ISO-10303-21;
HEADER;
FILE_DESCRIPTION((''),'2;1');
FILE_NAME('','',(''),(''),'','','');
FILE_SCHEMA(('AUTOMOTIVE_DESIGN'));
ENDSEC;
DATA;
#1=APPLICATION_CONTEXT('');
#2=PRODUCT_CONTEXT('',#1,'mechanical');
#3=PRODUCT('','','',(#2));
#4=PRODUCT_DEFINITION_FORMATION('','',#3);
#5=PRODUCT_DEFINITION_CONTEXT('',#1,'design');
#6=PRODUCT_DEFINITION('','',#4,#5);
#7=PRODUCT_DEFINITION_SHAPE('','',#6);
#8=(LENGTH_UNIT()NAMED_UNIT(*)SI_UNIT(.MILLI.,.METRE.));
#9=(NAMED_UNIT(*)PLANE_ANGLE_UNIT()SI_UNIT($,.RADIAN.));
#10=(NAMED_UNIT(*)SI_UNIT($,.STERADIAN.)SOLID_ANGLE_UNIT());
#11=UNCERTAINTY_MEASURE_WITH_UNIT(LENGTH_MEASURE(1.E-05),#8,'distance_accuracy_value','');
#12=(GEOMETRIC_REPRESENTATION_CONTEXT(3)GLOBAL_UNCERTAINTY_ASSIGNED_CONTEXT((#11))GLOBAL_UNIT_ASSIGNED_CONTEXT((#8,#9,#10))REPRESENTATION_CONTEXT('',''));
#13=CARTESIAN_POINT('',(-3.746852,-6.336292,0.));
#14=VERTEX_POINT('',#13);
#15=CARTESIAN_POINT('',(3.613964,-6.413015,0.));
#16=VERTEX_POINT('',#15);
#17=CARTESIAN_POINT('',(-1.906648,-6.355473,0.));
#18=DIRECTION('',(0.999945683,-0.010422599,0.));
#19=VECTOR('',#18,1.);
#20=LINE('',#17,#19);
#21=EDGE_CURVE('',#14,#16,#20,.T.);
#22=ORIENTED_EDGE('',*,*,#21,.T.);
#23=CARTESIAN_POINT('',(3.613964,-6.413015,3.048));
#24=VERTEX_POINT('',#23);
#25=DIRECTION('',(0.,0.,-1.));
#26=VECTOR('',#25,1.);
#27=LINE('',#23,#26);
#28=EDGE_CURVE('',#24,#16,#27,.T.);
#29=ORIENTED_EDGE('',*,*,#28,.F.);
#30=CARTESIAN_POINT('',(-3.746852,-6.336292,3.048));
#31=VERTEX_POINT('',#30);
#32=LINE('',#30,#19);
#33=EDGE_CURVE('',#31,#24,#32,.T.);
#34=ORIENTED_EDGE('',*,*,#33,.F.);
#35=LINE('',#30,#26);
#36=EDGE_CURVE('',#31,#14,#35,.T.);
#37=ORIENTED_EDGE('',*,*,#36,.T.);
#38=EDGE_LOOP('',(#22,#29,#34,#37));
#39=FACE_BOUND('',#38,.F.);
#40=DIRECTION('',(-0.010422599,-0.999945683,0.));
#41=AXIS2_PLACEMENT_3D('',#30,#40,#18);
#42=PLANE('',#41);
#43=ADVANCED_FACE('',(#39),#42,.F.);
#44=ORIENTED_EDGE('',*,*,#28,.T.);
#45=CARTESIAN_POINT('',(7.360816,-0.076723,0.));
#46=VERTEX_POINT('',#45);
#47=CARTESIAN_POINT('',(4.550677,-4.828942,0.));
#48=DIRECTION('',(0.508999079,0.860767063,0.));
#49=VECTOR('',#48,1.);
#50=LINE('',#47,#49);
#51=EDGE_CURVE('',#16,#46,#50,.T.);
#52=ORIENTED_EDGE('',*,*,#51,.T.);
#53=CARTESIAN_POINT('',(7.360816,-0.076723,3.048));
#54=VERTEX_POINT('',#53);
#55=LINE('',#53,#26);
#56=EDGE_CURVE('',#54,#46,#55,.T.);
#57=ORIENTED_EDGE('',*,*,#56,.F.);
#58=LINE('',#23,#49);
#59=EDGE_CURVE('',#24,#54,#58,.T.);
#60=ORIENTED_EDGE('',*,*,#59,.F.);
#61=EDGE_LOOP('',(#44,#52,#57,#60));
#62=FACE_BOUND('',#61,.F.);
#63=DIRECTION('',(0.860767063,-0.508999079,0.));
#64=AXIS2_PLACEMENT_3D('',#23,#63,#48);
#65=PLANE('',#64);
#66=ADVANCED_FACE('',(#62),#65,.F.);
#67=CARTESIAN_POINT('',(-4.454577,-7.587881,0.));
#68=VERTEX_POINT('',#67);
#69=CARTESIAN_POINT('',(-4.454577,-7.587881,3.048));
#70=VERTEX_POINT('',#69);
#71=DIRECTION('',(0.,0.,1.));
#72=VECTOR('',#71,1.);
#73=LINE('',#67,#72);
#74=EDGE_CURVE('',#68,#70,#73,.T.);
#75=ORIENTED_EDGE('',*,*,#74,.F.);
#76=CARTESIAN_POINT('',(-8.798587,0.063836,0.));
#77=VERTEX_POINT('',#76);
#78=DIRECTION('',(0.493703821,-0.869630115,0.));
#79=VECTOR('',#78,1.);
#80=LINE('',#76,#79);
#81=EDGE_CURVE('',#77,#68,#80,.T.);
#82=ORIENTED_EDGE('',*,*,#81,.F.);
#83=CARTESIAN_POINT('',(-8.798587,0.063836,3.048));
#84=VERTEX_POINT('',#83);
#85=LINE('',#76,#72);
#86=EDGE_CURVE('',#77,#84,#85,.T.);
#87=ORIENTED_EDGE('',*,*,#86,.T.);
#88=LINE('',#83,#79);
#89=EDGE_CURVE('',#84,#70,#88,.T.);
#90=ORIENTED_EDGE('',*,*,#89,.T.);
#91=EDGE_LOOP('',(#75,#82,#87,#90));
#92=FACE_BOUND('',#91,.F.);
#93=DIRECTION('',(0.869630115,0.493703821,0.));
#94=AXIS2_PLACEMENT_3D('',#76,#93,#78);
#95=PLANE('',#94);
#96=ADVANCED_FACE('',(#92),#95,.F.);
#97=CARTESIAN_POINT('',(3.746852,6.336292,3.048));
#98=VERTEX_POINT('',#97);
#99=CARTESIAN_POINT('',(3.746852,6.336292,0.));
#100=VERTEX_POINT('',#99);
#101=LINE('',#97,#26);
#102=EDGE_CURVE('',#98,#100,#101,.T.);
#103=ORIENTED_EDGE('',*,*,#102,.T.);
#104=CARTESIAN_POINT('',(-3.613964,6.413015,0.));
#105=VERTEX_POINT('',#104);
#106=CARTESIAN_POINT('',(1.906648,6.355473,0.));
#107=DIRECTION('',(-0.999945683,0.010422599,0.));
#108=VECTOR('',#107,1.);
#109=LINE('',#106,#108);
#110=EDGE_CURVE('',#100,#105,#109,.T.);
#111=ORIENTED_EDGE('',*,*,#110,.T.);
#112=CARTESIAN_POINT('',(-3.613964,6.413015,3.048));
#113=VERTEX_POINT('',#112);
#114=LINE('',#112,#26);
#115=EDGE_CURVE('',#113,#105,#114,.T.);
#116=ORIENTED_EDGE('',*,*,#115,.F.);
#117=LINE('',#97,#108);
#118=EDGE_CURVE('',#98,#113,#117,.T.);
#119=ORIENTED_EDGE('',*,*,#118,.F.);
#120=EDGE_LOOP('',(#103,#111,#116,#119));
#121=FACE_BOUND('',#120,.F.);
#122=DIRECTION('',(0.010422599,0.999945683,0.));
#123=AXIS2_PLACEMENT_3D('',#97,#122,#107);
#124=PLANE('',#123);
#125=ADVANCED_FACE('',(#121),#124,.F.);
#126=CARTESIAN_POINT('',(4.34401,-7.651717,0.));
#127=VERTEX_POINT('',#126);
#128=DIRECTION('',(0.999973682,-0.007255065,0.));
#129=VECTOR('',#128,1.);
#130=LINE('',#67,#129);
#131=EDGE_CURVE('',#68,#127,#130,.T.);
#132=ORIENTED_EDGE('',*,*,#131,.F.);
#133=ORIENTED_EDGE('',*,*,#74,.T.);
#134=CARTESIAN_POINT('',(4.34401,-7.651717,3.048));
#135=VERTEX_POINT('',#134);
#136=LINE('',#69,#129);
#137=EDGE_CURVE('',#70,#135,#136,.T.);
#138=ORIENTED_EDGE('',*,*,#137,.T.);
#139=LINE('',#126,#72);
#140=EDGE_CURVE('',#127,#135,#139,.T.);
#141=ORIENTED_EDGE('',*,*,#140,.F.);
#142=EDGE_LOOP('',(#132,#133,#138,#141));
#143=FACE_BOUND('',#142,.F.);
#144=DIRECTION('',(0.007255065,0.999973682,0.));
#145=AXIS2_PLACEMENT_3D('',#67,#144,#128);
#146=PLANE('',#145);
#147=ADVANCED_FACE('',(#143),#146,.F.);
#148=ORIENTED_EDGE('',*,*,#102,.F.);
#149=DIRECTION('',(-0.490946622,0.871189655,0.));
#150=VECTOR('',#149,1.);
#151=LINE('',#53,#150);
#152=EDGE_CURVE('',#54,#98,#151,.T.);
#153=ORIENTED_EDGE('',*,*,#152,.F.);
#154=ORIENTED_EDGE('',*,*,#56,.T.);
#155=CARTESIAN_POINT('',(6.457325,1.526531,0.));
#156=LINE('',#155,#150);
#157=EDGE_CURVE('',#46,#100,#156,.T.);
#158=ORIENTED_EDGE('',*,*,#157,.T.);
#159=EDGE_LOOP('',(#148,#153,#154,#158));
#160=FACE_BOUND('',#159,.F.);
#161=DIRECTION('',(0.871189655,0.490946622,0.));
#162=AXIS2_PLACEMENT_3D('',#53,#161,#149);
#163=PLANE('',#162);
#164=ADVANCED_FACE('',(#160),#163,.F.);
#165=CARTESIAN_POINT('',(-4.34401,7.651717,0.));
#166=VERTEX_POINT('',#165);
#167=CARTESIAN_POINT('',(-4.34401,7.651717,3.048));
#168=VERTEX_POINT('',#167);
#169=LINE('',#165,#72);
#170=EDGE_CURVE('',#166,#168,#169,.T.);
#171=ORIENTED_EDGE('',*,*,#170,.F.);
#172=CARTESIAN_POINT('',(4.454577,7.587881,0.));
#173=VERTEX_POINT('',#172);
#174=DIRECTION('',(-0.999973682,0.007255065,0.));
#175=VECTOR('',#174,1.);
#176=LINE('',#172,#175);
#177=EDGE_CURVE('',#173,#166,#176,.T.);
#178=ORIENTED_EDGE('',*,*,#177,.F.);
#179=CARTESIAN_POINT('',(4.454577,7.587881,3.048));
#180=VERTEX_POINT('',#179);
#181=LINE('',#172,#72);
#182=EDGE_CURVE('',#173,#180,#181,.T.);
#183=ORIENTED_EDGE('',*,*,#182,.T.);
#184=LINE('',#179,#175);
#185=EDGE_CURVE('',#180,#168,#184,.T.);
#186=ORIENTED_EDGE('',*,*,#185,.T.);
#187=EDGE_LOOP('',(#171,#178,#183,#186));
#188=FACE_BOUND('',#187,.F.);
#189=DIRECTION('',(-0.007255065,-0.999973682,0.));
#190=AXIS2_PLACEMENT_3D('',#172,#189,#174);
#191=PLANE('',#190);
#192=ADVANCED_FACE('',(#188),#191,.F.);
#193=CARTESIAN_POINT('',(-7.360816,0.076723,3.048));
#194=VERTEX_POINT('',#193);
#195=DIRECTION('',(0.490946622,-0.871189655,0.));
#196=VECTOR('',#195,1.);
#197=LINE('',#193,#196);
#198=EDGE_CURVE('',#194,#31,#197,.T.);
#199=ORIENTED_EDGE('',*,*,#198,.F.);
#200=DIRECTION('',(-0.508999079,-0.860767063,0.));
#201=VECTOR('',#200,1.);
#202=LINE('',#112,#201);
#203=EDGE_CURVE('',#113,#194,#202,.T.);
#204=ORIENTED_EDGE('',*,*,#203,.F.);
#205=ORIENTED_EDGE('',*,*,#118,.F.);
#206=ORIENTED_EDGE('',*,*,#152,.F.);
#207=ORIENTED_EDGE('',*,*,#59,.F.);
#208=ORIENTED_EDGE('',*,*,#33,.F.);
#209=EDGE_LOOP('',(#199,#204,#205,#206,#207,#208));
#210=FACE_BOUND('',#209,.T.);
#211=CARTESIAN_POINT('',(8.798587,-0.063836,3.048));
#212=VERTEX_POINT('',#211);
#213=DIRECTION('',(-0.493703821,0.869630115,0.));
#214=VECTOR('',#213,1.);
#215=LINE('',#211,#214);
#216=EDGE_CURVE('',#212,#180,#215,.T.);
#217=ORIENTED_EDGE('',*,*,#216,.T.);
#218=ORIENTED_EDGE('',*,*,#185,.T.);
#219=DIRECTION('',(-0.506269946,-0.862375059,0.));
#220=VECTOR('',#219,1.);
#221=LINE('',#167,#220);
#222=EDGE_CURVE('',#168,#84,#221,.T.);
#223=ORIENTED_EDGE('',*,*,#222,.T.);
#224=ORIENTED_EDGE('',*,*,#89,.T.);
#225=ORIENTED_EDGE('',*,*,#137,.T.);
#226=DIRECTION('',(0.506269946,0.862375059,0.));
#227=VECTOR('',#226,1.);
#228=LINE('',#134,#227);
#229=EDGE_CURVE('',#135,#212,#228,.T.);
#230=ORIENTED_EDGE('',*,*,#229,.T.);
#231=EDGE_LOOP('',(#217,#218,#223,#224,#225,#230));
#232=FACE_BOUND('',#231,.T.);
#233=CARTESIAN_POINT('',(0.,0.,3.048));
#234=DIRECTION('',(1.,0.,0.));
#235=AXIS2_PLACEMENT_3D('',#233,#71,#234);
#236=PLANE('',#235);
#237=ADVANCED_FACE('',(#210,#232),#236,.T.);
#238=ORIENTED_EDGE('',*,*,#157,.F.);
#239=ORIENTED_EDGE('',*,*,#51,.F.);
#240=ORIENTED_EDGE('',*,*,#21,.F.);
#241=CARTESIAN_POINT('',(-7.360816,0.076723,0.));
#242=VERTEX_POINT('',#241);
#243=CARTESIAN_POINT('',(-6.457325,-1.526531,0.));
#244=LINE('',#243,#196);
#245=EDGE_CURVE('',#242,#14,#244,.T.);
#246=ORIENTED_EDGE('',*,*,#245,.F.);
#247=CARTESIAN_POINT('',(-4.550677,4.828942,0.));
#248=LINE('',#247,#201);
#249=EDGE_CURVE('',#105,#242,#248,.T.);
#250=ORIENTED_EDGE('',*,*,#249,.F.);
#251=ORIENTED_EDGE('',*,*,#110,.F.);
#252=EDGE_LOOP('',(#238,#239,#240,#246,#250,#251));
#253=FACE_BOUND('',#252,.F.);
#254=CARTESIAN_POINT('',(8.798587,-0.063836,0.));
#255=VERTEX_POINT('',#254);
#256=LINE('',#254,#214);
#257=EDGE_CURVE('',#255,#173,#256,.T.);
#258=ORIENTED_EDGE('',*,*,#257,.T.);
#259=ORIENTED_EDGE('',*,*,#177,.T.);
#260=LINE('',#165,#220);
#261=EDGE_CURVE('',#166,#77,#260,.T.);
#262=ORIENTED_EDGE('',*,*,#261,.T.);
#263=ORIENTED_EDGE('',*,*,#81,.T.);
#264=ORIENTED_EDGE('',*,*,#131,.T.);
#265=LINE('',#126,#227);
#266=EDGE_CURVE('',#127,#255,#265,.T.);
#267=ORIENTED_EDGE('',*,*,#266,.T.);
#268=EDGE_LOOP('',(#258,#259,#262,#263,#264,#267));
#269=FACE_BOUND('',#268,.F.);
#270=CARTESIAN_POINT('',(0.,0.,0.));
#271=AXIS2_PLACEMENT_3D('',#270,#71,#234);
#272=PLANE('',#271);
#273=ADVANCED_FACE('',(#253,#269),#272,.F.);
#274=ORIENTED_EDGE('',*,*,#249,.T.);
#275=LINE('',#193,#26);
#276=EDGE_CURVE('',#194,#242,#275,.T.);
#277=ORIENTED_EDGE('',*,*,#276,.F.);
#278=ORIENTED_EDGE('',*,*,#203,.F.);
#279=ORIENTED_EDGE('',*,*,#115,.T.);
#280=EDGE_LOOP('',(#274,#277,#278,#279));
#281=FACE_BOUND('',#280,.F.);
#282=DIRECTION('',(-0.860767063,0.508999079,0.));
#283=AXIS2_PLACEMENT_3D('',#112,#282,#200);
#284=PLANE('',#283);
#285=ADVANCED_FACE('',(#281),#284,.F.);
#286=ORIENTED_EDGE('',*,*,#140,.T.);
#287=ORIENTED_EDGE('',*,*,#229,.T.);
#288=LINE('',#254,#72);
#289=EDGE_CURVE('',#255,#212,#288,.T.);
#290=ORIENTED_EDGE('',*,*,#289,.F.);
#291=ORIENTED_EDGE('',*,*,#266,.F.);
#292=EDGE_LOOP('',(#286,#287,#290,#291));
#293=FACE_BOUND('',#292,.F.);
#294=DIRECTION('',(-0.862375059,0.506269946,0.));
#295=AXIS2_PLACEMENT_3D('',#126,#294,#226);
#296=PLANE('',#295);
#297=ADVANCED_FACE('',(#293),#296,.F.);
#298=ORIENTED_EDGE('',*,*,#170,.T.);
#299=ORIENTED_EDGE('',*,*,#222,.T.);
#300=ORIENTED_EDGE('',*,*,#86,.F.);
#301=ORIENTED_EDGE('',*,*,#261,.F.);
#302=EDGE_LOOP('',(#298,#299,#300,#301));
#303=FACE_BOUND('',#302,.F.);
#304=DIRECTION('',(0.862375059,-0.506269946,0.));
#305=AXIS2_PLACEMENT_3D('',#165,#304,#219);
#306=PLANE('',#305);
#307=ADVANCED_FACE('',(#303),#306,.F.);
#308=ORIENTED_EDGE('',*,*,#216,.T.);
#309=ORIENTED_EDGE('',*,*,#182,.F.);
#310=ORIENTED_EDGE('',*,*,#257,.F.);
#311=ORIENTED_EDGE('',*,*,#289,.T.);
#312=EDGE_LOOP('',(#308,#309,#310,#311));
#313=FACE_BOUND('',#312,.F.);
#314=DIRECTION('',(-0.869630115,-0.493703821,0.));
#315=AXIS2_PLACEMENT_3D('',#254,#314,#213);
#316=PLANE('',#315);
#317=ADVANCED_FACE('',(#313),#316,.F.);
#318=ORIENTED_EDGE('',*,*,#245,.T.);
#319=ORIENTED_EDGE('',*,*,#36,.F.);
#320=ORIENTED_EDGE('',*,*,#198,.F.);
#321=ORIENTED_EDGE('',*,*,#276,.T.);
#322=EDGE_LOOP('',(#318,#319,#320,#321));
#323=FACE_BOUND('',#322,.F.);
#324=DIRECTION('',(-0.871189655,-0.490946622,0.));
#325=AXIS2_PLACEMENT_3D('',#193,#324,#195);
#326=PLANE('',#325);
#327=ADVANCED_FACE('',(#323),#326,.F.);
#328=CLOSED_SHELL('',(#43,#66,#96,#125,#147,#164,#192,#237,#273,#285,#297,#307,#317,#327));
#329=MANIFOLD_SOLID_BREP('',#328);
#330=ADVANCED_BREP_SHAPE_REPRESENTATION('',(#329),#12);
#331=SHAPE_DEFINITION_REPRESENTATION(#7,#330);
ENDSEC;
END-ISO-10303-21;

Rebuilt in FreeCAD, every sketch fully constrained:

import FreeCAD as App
import Part
import Sketcher

V = App.Vector


def add_polygon(sketch, points):
    """Adds a closed chain of lines whose ends are joined by coincident constraints."""
    first, n = sketch.GeometryCount, len(points)
    for a, b in zip(points, points[1:] + points[:1]):
        sketch.addGeometry(Part.LineSegment(App.Vector(*a, 0), App.Vector(*b, 0)), False)
    for i in range(n):
        sketch.addConstraint(Sketcher.Constraint("Coincident", first + i, 2, first + (i + 1) % n, 1))

doc = App.newDocument("Part")
params = doc.addObject("Spreadsheet::Sheet", "Params")
for row, (alias, value) in enumerate([
    ("pad1_length", "0.12 in"),
    ("pocket1_length", "3.49 in"),
], start=1):
    params.set(f"A{row}", alias)
    params.set(f"B{row}", "=" + value)
    params.setAlias(f"B{row}", alias)

body = doc.addObject("PartDesign::Body", "Body")

# Sketch on XY plane
sketch1 = body.newObject("Sketcher::SketchObject", "Sketch")
sketch1.AttachmentSupport = (doc.getObject("XY_Plane"), [""])
sketch1.MapMode = "FlatFace"
add_polygon(sketch1, [(4, -8), (9, 0), (4, 8), (-4, 8), (-9, 0), (-4, -8)])  # lines 0-5
sketch1.addConstraint([
    Sketcher.Constraint("Symmetric", 0, 2, 3, 2, -1, 1),
    Sketcher.Constraint("Symmetric", 1, 2, 4, 2, -1, 1),
    Sketcher.Constraint("Symmetric", 2, 2, 5, 2, -1, 1),
    Sketcher.Constraint("Equal", 0, 1),
    Sketcher.Constraint("Equal", 1, 2),
    Sketcher.Constraint("DistanceY", 4, 2, 2, 2, 15.239598),
    Sketcher.Constraint("Distance", 2, 8.798819),
    Sketcher.Constraint("DistanceY", -1, 1, 1, 2, 7.587881),
    Sketcher.Constraint("DistanceX", 2, 2, -1, 1, 4.34401),
])
pad1 = body.newObject("PartDesign::Pad", "Pad")
pad1.Profile = sketch1
pad1.setExpression("Length", "Params.pad1_length")

# Sketch on XY plane
sketch2 = body.newObject("Sketcher::SketchObject", "Sketch001")
sketch2.AttachmentSupport = (doc.getObject("XY_Plane"), [""])
sketch2.MapMode = "FlatFace"
sketch2.AttachmentOffset = App.Placement(V(0, 0, 0.12 * 25.4), App.Rotation())
add_polygon(sketch2, [(7, 0), (4, 6), (-4, 6), (-7, 0), (-4, -6), (4, -6)])  # lines 0-5
sketch2.addConstraint([
    Sketcher.Constraint("Symmetric", 0, 2, 3, 2, -1, 1),
    Sketcher.Constraint("Symmetric", 1, 2, 4, 2, -1, 1),
    Sketcher.Constraint("Symmetric", 2, 2, 5, 2, -1, 1),
    Sketcher.Constraint("Equal", 0, 1),
    Sketcher.Constraint("Equal", 1, 2),
    Sketcher.Constraint("DistanceX", 2, 2, 1, 2, 3.746852),
    Sketcher.Constraint("DistanceY", 2, 2, 1, 2, 6.336292),
    Sketcher.Constraint("DistanceY", 2, 2, 0, 2, 6.259569),
    Sketcher.Constraint("DistanceX", 2, 2, 4, 2, 10.97478),
])
pocket1 = body.newObject("PartDesign::Pocket", "Pocket")
pocket1.Profile = sketch2
pocket1.setExpression("Length", "Params.pocket1_length")

doc.recompute()
